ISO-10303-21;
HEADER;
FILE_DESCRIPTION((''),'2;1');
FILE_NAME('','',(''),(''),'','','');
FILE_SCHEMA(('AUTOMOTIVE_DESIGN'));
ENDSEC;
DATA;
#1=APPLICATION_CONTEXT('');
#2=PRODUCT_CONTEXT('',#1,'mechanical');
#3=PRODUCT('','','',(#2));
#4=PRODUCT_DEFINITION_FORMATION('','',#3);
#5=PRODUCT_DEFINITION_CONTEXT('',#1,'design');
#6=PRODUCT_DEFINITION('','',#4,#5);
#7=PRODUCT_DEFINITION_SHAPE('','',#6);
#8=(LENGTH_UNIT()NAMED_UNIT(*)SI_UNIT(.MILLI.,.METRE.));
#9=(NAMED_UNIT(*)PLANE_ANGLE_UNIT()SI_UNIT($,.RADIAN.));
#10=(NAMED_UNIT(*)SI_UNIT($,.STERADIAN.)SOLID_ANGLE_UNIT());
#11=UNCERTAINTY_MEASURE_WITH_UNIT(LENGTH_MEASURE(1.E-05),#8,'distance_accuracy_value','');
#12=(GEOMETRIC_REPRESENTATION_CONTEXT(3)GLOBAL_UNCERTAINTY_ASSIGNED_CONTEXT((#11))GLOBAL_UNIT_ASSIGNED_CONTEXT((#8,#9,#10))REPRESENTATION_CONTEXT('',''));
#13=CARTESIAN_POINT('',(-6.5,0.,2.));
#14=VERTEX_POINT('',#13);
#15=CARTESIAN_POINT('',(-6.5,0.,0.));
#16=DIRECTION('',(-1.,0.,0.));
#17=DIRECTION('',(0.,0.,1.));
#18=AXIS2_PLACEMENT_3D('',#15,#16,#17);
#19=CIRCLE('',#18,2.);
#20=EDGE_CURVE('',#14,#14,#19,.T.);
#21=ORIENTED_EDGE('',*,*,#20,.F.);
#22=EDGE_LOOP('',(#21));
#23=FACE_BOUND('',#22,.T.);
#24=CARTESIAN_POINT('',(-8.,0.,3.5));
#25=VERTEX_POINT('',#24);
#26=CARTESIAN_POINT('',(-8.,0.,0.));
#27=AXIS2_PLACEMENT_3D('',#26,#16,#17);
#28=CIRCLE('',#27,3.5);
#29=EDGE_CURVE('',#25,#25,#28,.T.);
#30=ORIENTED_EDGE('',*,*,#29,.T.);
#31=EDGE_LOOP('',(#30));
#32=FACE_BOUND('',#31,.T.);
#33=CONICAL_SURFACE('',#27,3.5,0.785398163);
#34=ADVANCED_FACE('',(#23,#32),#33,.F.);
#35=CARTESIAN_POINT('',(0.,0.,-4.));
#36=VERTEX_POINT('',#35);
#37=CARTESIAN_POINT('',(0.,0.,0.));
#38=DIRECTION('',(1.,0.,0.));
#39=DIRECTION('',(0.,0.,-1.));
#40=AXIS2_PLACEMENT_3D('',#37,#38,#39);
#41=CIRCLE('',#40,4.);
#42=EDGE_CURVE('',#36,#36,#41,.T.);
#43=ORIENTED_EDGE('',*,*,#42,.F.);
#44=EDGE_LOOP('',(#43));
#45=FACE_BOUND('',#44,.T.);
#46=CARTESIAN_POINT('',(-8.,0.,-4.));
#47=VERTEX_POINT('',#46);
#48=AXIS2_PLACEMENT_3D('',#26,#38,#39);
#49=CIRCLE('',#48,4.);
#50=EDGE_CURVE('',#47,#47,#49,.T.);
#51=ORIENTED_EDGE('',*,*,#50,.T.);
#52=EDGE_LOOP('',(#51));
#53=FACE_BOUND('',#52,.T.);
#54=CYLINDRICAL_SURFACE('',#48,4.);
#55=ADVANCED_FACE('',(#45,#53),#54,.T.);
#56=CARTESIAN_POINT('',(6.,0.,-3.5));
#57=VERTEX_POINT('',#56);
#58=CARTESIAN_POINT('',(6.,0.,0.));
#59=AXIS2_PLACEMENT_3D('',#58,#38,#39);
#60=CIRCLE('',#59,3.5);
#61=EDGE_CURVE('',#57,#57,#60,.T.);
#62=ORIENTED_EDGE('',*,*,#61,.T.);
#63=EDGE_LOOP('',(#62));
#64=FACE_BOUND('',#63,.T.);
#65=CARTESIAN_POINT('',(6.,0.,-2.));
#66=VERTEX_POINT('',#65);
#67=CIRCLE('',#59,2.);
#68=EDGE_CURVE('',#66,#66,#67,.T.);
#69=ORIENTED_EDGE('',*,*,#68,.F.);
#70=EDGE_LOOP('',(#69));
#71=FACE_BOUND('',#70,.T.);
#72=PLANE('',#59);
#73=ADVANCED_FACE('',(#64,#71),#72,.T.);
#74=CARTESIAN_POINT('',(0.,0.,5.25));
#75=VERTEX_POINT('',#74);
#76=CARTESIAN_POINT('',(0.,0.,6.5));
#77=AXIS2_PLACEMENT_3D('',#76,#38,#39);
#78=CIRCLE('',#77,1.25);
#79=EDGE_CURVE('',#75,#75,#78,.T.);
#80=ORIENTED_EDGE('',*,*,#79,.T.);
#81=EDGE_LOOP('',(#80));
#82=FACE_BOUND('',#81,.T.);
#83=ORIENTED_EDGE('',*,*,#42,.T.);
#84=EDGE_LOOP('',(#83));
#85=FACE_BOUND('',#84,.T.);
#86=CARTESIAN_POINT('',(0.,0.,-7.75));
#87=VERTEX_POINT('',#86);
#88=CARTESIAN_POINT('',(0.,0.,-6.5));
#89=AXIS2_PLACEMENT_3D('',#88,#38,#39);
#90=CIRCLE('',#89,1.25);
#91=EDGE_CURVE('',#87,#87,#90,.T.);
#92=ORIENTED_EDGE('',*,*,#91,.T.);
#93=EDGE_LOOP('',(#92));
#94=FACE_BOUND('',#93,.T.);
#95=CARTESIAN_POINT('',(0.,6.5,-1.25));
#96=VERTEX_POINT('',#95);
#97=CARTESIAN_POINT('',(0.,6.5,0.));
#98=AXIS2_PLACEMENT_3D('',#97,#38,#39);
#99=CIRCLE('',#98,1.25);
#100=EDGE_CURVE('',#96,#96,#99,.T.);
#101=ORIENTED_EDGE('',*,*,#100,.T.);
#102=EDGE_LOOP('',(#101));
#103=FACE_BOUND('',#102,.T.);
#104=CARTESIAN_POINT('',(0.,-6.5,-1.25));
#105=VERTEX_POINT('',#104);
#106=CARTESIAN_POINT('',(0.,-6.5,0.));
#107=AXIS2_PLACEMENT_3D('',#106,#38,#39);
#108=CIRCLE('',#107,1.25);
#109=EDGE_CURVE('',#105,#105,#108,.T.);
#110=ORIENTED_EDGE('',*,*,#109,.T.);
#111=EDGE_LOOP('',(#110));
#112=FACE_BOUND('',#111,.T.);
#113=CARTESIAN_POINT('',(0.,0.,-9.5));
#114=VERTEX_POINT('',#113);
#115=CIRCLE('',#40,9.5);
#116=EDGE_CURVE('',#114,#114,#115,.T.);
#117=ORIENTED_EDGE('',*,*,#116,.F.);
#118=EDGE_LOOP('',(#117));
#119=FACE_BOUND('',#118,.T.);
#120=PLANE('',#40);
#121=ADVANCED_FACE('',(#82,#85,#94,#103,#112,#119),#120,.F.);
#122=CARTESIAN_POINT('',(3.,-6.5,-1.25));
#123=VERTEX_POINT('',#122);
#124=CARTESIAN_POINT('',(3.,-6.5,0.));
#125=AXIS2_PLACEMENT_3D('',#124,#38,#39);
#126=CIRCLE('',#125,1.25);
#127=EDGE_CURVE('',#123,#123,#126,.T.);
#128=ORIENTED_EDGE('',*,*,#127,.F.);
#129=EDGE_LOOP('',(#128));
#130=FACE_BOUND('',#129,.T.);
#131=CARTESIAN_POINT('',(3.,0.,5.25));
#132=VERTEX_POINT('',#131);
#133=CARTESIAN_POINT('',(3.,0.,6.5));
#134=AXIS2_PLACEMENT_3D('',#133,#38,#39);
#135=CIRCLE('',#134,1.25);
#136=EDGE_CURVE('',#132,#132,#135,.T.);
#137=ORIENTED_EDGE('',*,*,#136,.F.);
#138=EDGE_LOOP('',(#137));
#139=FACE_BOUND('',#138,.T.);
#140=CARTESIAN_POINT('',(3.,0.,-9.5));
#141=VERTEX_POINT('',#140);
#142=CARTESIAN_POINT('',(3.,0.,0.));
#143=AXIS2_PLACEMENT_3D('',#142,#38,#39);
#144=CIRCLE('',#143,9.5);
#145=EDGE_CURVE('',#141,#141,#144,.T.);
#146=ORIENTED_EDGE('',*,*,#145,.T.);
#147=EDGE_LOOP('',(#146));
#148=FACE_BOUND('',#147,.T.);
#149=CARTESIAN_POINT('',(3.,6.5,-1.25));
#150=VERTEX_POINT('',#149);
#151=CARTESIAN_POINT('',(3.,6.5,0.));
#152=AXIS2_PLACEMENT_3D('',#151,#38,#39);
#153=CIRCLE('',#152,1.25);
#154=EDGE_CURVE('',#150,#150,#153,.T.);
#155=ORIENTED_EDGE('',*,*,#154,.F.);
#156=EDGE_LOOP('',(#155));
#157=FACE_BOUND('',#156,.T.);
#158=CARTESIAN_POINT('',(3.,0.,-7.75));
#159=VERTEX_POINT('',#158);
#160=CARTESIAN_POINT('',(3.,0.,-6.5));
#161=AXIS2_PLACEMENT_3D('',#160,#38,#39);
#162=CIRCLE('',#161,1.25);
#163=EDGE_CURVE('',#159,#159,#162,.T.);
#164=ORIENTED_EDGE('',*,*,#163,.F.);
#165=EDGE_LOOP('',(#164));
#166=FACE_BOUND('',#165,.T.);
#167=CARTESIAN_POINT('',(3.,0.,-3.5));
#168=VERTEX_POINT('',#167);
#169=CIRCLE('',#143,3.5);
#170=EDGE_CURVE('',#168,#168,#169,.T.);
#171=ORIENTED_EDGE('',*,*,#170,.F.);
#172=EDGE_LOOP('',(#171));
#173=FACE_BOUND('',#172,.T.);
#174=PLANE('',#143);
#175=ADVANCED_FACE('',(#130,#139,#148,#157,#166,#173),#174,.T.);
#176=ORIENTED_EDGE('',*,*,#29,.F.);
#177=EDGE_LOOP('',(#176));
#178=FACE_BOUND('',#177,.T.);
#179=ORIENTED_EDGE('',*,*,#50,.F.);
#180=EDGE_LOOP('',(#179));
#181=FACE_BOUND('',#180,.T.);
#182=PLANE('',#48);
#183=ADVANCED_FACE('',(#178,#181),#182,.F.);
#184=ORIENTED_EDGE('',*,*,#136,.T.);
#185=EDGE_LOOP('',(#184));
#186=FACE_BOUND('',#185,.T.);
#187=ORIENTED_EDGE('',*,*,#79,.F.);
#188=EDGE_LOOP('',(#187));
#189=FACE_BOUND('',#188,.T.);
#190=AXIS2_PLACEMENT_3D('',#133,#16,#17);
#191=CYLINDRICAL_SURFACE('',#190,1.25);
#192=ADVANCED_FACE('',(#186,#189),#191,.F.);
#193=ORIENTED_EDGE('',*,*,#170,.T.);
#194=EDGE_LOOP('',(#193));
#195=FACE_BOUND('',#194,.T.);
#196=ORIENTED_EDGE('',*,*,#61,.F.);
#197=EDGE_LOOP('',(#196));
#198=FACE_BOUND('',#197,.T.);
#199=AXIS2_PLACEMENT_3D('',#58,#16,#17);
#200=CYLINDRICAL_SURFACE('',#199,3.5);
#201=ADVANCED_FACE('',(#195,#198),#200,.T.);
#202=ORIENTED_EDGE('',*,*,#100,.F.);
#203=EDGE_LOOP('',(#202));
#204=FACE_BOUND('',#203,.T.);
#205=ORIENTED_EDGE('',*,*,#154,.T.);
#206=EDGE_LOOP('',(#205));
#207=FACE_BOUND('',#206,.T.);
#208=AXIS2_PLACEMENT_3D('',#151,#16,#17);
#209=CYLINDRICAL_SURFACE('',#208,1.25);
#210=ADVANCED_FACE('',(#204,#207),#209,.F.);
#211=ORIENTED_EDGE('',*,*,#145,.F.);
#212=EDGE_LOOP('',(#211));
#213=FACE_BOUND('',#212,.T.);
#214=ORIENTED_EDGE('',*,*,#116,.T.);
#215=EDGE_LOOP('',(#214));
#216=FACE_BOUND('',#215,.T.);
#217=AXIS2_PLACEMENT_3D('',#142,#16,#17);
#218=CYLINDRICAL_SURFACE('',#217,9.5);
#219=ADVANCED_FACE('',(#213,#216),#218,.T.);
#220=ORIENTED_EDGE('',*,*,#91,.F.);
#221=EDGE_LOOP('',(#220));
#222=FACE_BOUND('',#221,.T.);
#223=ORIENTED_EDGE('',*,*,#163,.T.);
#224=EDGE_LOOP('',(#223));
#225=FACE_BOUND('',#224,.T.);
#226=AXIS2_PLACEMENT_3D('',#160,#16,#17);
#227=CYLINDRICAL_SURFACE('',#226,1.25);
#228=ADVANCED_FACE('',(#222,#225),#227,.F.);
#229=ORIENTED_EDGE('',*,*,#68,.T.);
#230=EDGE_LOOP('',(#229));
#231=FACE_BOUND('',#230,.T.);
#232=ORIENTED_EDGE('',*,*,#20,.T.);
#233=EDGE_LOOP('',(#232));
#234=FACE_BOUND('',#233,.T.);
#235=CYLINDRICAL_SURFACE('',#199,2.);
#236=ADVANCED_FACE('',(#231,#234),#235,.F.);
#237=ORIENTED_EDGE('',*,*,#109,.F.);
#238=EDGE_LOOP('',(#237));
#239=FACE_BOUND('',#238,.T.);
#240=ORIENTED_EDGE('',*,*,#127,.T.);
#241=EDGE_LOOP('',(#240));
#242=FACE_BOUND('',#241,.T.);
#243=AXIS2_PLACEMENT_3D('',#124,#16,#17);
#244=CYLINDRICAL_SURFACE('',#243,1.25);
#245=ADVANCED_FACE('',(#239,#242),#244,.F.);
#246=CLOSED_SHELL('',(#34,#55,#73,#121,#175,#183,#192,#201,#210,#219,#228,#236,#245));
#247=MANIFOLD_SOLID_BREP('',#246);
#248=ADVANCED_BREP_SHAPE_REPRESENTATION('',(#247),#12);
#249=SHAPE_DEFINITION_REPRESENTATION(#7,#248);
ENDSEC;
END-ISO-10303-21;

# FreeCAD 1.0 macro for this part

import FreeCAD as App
import Part
import Sketcher
Q = App.Units.Quantity


def add_polygon(sketch, points):
    """Adds a closed chain of lines whose ends are joined by coincident constraints."""
    first, n = sketch.GeometryCount, len(points)
    for a, b in zip(points, points[1:] + points[:1]):
        sketch.addGeometry(Part.LineSegment(App.Vector(*a, 0), App.Vector(*b, 0)), False)
    for i in range(n):
        sketch.addConstraint(Sketcher.Constraint("Coincident", first + i, 2, first + (i + 1) % n, 1))

doc = App.newDocument("Part")
body = doc.addObject("PartDesign::Body", "Body")

# Sketch on YZ plane
sketch1 = body.newObject("Sketcher::SketchObject", "Sketch")
sketch1.AttachmentSupport = (doc.getObject("YZ_Plane"), [""])
sketch1.MapMode = "FlatFace"
sketch1.addGeometry([
    Part.Circle(App.Vector(0, 0, 0), App.Vector(0, 0, 1), 9.5),  # 0
    Part.Circle(App.Vector(-6.5, 0, 0), App.Vector(0, 0, 1), 1.2),  # 1
    Part.Circle(App.Vector(0, 6.5, 0), App.Vector(0, 0, 1), 1.2),  # 2
    Part.Circle(App.Vector(0, -6.5, 0), App.Vector(0, 0, 1), 1.2),  # 3
    Part.Circle(App.Vector(6.5, 0, 0), App.Vector(0, 0, 1), 1.2),  # 4
    Part.Circle(App.Vector(0, 0, 0), App.Vector(0, 0, 1), 3.5),  # 5
], False)
sketch1.addConstraint([
    Sketcher.Constraint("Coincident", 0, 3, -1, 1),
    Sketcher.Constraint("Coincident", 5, 3, -1, 1),
    Sketcher.Constraint("Equal", 1, 2),
    Sketcher.Constraint("Equal", 2, 3),
    Sketcher.Constraint("Equal", 3, 4),
    Sketcher.Constraint("Symmetric", 2, 3, 3, 3, -1, 1),
    Sketcher.Constraint("Symmetric", 1, 3, 4, 3, -1, 1),
    Sketcher.Constraint("PointOnObject", 1, 3, -1),
    Sketcher.Constraint("PointOnObject", 2, 3, -2),
    Sketcher.Constraint("Diameter", 0, Q("19 mm")),
    Sketcher.Constraint("Diameter", 5, Q("7 mm")),
    Sketcher.Constraint("Diameter", 1, Q("2.5 mm")),
    Sketcher.Constraint("DistanceY", 3, 3, 2, 3, Q("13 mm")),
    Sketcher.Constraint("DistanceX", 1, 3, 4, 3, Q("13 mm")),
])
pad1 = body.newObject("PartDesign::Pad", "Pad")
pad1.Profile = sketch1
pad1.Length = 3

# Sketch on YZ plane
sketch2 = body.newObject("Sketcher::SketchObject", "Sketch001")
sketch2.AttachmentSupport = (doc.getObject("YZ_Plane"), [""])
sketch2.MapMode = "FlatFace"
sketch2.addGeometry([
    Part.Circle(App.Vector(0, 0, 0), App.Vector(0, 0, 1), 3.5),
    Part.Circle(App.Vector(0, 0, 0), App.Vector(0, 0, 1), 2),
], False)
sketch2.addConstraint([
    Sketcher.Constraint("Coincident", 0, 3, -1, 1),
    Sketcher.Constraint("Coincident", 1, 3, -1, 1),
    Sketcher.Constraint("Diameter", 0, Q("7 mm")),
    Sketcher.Constraint("Diameter", 1, Q("4 mm")),
])
pad2 = body.newObject("PartDesign::Pad", "Pad001")
pad2.Profile = sketch2
pad2.Length = 6

# Sketch on YZ plane
sketch3 = body.newObject("Sketcher::SketchObject", "Sketch002")
sketch3.AttachmentSupport = (doc.getObject("YZ_Plane"), [""])
sketch3.MapMode = "FlatFace"
sketch3.AttachmentOffset = App.Placement(App.Vector(0, 0, -8), App.Rotation())
sketch3.addGeometry([
    Part.Circle(App.Vector(0, 0, 0), App.Vector(0, 0, 1), 4),
    Part.Circle(App.Vector(0, 0, 0), App.Vector(0, 0, 1), 2),
], False)
sketch3.addConstraint([
    Sketcher.Constraint("Coincident", 0, 3, -1, 1),
    Sketcher.Constraint("Coincident", 1, 3, -1, 1),
    Sketcher.Constraint("Diameter", 0, Q("8 mm")),
    Sketcher.Constraint("Diameter", 1, Q("4 mm")),
])
pad3 = body.newObject("PartDesign::Pad", "Pad002")
pad3.Profile = sketch3
pad3.Length = 8

# Sketch on XZ plane
sketch4 = body.newObject("Sketcher::SketchObject", "Sketch003")
sketch4.AttachmentSupport = (doc.getObject("XZ_Plane"), [""])
sketch4.MapMode = "FlatFace"
add_polygon(sketch4, [(-8, 0), (-8, 3.5), (-4.5, 0)])  # lines 0-2
sketch4.addConstraint([
    Sketcher.Constraint("Vertical", 0),
    Sketcher.Constraint("Horizontal", 2),
    Sketcher.Constraint("PointOnObject", 1, 2, -1),
    Sketcher.Constraint("Equal", 2, 0),
    Sketcher.Constraint("DistanceX", 2, 2, 2, 1, Q("3.5 mm")),
    Sketcher.Constraint("DistanceX", 0, 2, -1, 1, Q("8 mm")),
])
groove = body.newObject("PartDesign::Groove", "Groove")
groove.Profile = sketch4
groove.ReferenceAxis = (sketch4, ["H_Axis"])
groove.Angle = 360

doc.recompute()
